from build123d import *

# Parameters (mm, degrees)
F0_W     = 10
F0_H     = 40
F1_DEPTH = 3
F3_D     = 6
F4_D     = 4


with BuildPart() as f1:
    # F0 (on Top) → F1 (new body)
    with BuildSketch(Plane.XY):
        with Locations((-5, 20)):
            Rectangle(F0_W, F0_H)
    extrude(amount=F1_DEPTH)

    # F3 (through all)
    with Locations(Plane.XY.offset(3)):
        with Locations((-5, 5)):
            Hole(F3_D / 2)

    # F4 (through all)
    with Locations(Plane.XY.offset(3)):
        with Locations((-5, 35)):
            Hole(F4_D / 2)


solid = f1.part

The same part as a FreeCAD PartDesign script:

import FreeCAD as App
import Part
import Sketcher


def add_polygon(sketch, points):
    """Adds a closed chain of lines whose ends are joined by coincident constraints."""
    first, n = sketch.GeometryCount, len(points)
    for a, b in zip(points, points[1:] + points[:1]):
        sketch.addGeometry(Part.LineSegment(App.Vector(*a, 0), App.Vector(*b, 0)), False)
    for i in range(n):
        sketch.addConstraint(Sketcher.Constraint("Coincident", first + i, 2, first + (i + 1) % n, 1))

doc = App.newDocument("Part")
params = doc.addObject("Spreadsheet::Sheet", "Params")
for row, (alias, value) in enumerate([
    ("sketch1_width", "10 mm"),
    ("sketch1_height", "40 mm"),
    ("pad1_length", "3 mm"),
    ("sketch2_diameter", "6 mm"),
    ("hole_diameter", "6 mm"),
    ("sketch3_diameter", "4 mm"),
    ("hole2_diameter", "4 mm"),
], start=1):
    params.set(f"A{row}", alias)
    params.set(f"B{row}", "=" + value)
    params.setAlias(f"B{row}", alias)

body = doc.addObject("PartDesign::Body", "Body")

# Sketch on XY plane
sketch1 = body.newObject("Sketcher::SketchObject", "Sketch")
sketch1.AttachmentSupport = (doc.getObject("XY_Plane"), [""])
sketch1.MapMode = "FlatFace"
add_polygon(sketch1, [(-10, 40), (-10, 0), (0, 0), (0, 40)])  # lines 0-3
sketch1.addConstraint([
    Sketcher.Constraint("Vertical", 0),
    Sketcher.Constraint("Horizontal", 1),
    Sketcher.Constraint("Vertical", 2),
    Sketcher.Constraint("Horizontal", 3),
    Sketcher.Constraint("Coincident", 1, 2, -1, 1),
    Sketcher.Constraint("DistanceX", 1, 1, 1, 2, 10.0),
    Sketcher.Constraint("DistanceY", 0, 2, 0, 1, 40.0),
])
sketch1.setExpression("Constraints[9]", "Params.sketch1_width")
sketch1.setExpression("Constraints[10]", "Params.sketch1_height")
pad1 = body.newObject("PartDesign::Pad", "Pad")
pad1.Profile = sketch1
pad1.setExpression("Length", "Params.pad1_length")

# Sketch on XY plane
sketch2 = body.newObject("Sketcher::SketchObject", "Sketch001")
sketch2.AttachmentSupport = (doc.getObject("XY_Plane"), [""])
sketch2.MapMode = "FlatFace"
sketch2.AttachmentOffset = App.Placement(App.Vector(0, 0, 3), App.Rotation())
sketch2.addGeometry(Part.Circle(App.Vector(-5, 5, 0), App.Vector(0, 0, 1), 3), False)
sketch2.addConstraint([
    Sketcher.Constraint("Diameter", 0, 6.0),
    Sketcher.Constraint("DistanceX", 0, 3, -1, 1, 5.0),
    Sketcher.Constraint("DistanceY", -1, 1, 0, 3, 5.0),
])
sketch2.setExpression("Constraints[0]", "Params.sketch2_diameter")
doc.recompute()
hole = body.newObject("PartDesign::Hole", "Hole")
hole.Profile = sketch2
hole.ThreadType = "None"
hole.setExpression("Diameter", "Params.hole_diameter")
hole.DepthType = "ThroughAll"

# Sketch on XY plane
sketch3 = body.newObject("Sketcher::SketchObject", "Sketch002")
sketch3.AttachmentSupport = (doc.getObject("XY_Plane"), [""])
sketch3.MapMode = "FlatFace"
sketch3.AttachmentOffset = App.Placement(App.Vector(0, 0, 3), App.Rotation())
sketch3.addGeometry(Part.Circle(App.Vector(-5, 35, 0), App.Vector(0, 0, 1), 2), False)
sketch3.addConstraint([
    Sketcher.Constraint("Diameter", 0, 4.0),
    Sketcher.Constraint("DistanceX", 0, 3, -1, 1, 5.0),
    Sketcher.Constraint("DistanceY", -1, 1, 0, 3, 35.0),
])
sketch3.setExpression("Constraints[0]", "Params.sketch3_diameter")
doc.recompute()
hole2 = body.newObject("PartDesign::Hole", "Hole001")
hole2.Profile = sketch3
hole2.ThreadType = "None"
hole2.setExpression("Diameter", "Params.hole2_diameter")
hole2.DepthType = "ThroughAll"

doc.recompute()
